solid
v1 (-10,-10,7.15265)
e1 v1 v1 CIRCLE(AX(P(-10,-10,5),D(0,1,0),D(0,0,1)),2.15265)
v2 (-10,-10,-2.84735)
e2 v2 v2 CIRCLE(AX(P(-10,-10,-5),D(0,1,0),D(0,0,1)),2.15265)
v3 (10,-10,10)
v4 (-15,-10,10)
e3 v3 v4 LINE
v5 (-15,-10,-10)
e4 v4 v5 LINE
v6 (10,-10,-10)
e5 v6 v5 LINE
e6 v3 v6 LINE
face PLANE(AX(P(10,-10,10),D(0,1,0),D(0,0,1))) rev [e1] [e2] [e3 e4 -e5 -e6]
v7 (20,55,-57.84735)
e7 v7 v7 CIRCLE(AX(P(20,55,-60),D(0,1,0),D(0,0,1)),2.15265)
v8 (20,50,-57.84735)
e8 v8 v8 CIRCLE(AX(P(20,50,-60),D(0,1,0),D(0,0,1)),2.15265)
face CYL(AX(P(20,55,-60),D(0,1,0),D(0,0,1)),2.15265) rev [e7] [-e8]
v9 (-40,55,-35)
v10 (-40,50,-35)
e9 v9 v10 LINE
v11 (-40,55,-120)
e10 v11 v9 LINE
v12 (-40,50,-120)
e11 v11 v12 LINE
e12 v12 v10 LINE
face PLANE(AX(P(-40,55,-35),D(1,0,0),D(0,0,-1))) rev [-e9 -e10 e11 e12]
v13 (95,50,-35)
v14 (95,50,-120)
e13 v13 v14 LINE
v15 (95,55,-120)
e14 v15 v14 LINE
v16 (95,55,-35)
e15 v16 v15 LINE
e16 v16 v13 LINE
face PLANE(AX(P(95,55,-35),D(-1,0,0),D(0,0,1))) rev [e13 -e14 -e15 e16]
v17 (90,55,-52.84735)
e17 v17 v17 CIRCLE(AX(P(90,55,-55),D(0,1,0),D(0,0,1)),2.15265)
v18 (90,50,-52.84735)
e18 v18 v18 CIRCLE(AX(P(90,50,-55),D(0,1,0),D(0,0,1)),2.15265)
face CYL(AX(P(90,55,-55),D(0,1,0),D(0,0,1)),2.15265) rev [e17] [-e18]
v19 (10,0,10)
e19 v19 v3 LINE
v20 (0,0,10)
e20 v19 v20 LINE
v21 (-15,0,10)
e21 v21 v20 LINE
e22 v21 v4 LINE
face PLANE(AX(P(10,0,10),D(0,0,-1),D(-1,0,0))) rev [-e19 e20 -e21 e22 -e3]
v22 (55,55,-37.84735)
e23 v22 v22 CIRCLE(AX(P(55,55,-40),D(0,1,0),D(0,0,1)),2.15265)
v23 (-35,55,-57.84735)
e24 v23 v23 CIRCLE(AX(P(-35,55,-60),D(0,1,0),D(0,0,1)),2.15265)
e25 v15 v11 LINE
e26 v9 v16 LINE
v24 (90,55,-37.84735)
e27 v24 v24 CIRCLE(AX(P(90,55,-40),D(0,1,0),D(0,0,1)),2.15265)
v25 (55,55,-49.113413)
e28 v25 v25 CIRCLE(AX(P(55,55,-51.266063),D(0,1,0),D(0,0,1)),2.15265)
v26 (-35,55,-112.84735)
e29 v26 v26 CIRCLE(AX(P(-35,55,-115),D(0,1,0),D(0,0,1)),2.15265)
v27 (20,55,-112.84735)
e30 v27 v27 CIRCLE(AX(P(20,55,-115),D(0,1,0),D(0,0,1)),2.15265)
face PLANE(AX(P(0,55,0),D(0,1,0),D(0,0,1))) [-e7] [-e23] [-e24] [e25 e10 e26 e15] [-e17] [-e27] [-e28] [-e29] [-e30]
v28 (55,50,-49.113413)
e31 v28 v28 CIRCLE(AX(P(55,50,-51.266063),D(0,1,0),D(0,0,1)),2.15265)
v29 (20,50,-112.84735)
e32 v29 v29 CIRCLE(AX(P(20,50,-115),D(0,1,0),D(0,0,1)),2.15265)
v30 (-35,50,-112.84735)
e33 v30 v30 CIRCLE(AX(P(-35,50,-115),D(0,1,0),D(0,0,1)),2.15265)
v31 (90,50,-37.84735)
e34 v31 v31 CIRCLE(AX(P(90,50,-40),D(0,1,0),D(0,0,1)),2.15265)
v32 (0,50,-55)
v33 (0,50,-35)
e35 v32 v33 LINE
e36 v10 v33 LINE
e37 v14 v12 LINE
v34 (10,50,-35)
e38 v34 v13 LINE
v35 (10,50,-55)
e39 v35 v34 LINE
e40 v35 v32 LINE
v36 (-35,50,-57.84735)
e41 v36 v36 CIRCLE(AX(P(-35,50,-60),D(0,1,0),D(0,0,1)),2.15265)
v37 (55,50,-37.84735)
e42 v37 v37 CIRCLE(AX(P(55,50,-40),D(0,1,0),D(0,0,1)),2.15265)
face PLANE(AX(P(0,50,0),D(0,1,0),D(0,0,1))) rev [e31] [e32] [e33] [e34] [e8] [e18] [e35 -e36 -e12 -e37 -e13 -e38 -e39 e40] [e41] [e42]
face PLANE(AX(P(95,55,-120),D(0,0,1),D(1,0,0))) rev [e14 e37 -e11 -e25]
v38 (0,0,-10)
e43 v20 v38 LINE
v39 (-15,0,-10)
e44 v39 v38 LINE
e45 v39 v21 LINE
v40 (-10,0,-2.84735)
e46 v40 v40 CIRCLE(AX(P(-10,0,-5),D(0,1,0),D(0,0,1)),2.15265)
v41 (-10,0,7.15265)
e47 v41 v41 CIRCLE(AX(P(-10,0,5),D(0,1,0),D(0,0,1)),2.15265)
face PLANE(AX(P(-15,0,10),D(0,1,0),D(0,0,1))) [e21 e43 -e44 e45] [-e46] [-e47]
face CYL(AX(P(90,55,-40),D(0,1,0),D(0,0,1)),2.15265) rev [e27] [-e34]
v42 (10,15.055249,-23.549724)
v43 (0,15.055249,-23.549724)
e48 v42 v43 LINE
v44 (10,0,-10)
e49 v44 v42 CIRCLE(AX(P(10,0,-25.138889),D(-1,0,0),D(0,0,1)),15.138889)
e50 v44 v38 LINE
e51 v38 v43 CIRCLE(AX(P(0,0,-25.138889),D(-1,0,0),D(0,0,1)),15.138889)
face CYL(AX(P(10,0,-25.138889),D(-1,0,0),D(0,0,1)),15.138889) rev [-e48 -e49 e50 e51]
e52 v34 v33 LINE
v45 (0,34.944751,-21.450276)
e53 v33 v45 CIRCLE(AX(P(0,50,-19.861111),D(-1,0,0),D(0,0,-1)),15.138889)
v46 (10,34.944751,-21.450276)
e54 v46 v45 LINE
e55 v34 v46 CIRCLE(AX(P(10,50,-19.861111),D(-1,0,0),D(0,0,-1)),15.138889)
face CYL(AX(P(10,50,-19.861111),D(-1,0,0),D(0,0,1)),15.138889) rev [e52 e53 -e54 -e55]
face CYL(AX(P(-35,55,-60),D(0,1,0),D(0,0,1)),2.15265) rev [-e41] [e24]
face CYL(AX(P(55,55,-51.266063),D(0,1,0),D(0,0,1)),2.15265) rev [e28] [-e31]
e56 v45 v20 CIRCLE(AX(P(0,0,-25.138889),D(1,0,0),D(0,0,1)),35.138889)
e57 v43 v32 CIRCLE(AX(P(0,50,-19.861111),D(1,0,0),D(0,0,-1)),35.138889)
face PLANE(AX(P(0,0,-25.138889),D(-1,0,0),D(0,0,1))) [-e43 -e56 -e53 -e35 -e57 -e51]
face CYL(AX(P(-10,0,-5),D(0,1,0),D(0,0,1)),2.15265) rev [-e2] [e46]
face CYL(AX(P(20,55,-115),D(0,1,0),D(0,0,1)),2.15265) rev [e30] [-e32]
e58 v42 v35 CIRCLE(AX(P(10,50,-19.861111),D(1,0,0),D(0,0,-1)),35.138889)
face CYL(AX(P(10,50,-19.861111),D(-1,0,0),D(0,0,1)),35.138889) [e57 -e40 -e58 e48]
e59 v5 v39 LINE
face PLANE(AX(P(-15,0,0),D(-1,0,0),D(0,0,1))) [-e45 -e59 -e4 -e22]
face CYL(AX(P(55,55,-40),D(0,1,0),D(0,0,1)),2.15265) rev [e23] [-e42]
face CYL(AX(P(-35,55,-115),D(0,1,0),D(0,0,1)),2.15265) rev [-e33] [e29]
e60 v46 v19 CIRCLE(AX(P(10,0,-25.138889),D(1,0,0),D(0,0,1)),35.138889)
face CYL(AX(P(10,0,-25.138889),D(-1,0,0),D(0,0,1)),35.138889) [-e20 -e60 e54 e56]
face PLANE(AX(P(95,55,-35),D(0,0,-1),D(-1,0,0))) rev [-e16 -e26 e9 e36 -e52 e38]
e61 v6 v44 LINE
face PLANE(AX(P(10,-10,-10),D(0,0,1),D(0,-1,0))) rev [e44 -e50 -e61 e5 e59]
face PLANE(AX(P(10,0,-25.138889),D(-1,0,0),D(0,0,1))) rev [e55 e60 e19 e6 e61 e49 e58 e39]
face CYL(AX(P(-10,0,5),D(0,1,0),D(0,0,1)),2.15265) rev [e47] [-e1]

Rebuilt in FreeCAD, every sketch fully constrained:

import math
import FreeCAD as App
import Part
import Sketcher

V = App.Vector

doc = App.newDocument("Part")
body = doc.addObject("PartDesign::Body", "Body")

# Sketch on YZ plane
sketch1 = body.newObject("Sketcher::SketchObject", "Sketch")
sketch1.AttachmentSupport = (doc.getObject("YZ_Plane"), [""])
sketch1.MapMode = "FlatFace"
sketch1.addGeometry([
    Part.LineSegment(V(0, 10, 0), V(-10, 10, 0)),  # 0
    Part.LineSegment(V(-10, 10, 0), V(-10, -10, 0)),  # 1
    Part.LineSegment(V(-10, -10, 0), V(0, -10, 0)),  # 2
    Part.ArcOfCircle(Part.Circle(V(0, -25, 0), V(0, 0, 1), 15), math.radians(6), math.radians(90)),  # 3
    Part.ArcOfCircle(Part.Circle(V(50, -20, 0), V(0, 0, 1), 35), math.radians(-174), math.radians(-90)),  # 4
    Part.LineSegment(V(50, -55, 0), V(50, -35, 0)),  # 5
    Part.ArcOfCircle(Part.Circle(V(50, -20, 0), V(0, 0, 1), 15), math.radians(-174), math.radians(-90)),  # 6
    Part.ArcOfCircle(Part.Circle(V(0, -25, 0), V(0, 0, 1), 35), math.radians(6), math.radians(90)),  # 7
], False)
sketch1.addConstraint([
    Sketcher.Constraint("Coincident", 0, 2, 1, 1),
    Sketcher.Constraint("Coincident", 1, 2, 2, 1),
    Sketcher.Constraint("Tangent", 2, 2, 3, 2),
    Sketcher.Constraint("Tangent", 3, 1, 4, 1),
    Sketcher.Constraint("Coincident", 4, 2, 5, 1),
    Sketcher.Constraint("Coincident", 5, 2, 6, 2),
    Sketcher.Constraint("Tangent", 6, 1, 7, 1),
    Sketcher.Constraint("Tangent", 7, 2, 0, 1),
    Sketcher.Constraint("Horizontal", 0),
    Sketcher.Constraint("Vertical", 1),
    Sketcher.Constraint("Horizontal", 2),
    Sketcher.Constraint("Vertical", 5),
    Sketcher.Constraint("Coincident", 6, 3, 4, 3),
    Sketcher.Constraint("Coincident", 7, 3, 3, 3),
    Sketcher.Constraint("Equal", 3, 6),
    Sketcher.Constraint("Symmetric", 2, 2, 7, 2, -1, 1),
    Sketcher.Constraint("Vertical", 6, 3, 4, 2),
    Sketcher.Constraint("DistanceX", 0, 2, 0, 1, 10.0),
    Sketcher.Constraint("DistanceY", 1, 2, 1, 1, 20.0),
    Sketcher.Constraint("DistanceX", -1, 1, 4, 3, 50.0),
    Sketcher.Constraint("DistanceY", 4, 2, -1, 1, 55.0),
])
pad1 = body.newObject("PartDesign::Pad", "Pad")
pad1.Profile = sketch1
pad1.Length = 10

# Sketch on YZ plane
sketch2 = body.newObject("Sketcher::SketchObject", "Sketch001")
sketch2.AttachmentSupport = (doc.getObject("YZ_Plane"), [""])
sketch2.MapMode = "FlatFace"
sketch2.AttachmentOffset = App.Placement(V(0, 0, 10), App.Rotation())
sketch2.addGeometry([
    Part.LineSegment(V(0, 10, 0), V(-10, 10, 0)),
    Part.LineSegment(V(-10, 10, 0), V(-10, -10, 0)),
    Part.LineSegment(V(-10, -10, 0), V(0, -10, 0)),
    Part.LineSegment(V(0, -10, 0), V(0, 10, 0)),
], False)
sketch2.addConstraint([
    Sketcher.Constraint("Coincident", 0, 2, 1, 1),
    Sketcher.Constraint("Coincident", 1, 2, 2, 1),
    Sketcher.Constraint("Coincident", 2, 2, 3, 1),
    Sketcher.Constraint("Coincident", 3, 2, 0, 1),
    Sketcher.Constraint("Horizontal", 0),
    Sketcher.Constraint("Vertical", 1),
    Sketcher.Constraint("Horizontal", 2),
    Sketcher.Constraint("Vertical", 3),
    Sketcher.Constraint("Symmetric", 2, 2, 3, 2, -1, 1),
    Sketcher.Constraint("DistanceX", 0, 2, 0, 1, 10.0),
    Sketcher.Constraint("DistanceY", 1, 2, 1, 1, 20.0),
])
pad2 = body.newObject("PartDesign::Pad", "Pad001")
pad2.Profile = sketch2
pad2.Length = 25
pad2.Reversed = True

# Sketch on XZ plane
sketch3 = body.newObject("Sketcher::SketchObject", "Sketch002")
sketch3.AttachmentSupport = (doc.getObject("XZ_Plane"), [""])
sketch3.MapMode = "FlatFace"
sketch3.addGeometry([
    Part.Circle(V(-10, -5, 0), V(0, 0, 1), 2.2),
    Part.Circle(V(-10, 5, 0), V(0, 0, 1), 2.2),
], False)
sketch3.addConstraint([
    Sketcher.Constraint("Equal", 0, 1),
    Sketcher.Constraint("Symmetric", 0, 3, 1, 3, -1),
    Sketcher.Constraint("DistanceX", 0, 3, -1, 1, 10.0),
    Sketcher.Constraint("DistanceY", 0, 3, -1, 1, 5.0),
    Sketcher.Constraint("Diameter", 0, 4.3053),
])
doc.recompute()
hole = body.newObject("PartDesign::Hole", "Hole")
hole.Profile = sketch3
hole.ThreadType = "None"
hole.Diameter = 4.3053
hole.DepthType = "ThroughAll"
hole.Reversed = True

# Sketch on XZ plane
sketch4 = body.newObject("Sketcher::SketchObject", "Sketch003")
sketch4.AttachmentSupport = (doc.getObject("XZ_Plane"), [""])
sketch4.MapMode = "FlatFace"
sketch4.AttachmentOffset = App.Placement(V(0, 0, -50), App.Rotation())
sketch4.addGeometry([
    Part.LineSegment(V(-40, -120, 0), V(-40, -35, 0)),
    Part.LineSegment(V(-40, -35, 0), V(95, -35, 0)),
    Part.LineSegment(V(95, -35, 0), V(95, -120, 0)),
    Part.LineSegment(V(95, -120, 0), V(-40, -120, 0)),
], False)
sketch4.addConstraint([
    Sketcher.Constraint("Coincident", 0, 2, 1, 1),
    Sketcher.Constraint("Coincident", 1, 2, 2, 1),
    Sketcher.Constraint("Coincident", 2, 2, 3, 1),
    Sketcher.Constraint("Coincident", 3, 2, 0, 1),
    Sketcher.Constraint("Vertical", 0),
    Sketcher.Constraint("Horizontal", 1),
    Sketcher.Constraint("Vertical", 2),
    Sketcher.Constraint("Horizontal", 3),
    Sketcher.Constraint("DistanceX", 1, 1, 1, 2, 135.0),
    Sketcher.Constraint("DistanceY", 0, 1, 0, 2, 85.0),
    Sketcher.Constraint("DistanceX", 0, 2, -1, 1, 40.0),
    Sketcher.Constraint("DistanceY", 0, 2, -1, 1, 35.0),
])
pad3 = body.newObject("PartDesign::Pad", "Pad002")
pad3.Profile = sketch4
pad3.Length = 5
pad3.Reversed = True

# Sketch on XZ plane
sketch5 = body.newObject("Sketcher::SketchObject", "Sketch004")
sketch5.AttachmentSupport = (doc.getObject("XZ_Plane"), [""])
sketch5.MapMode = "FlatFace"
sketch5.AttachmentOffset = App.Placement(V(0, 0, -55), App.Rotation())
sketch5.addGeometry([
    Part.Circle(V(20, -115, 0), V(0, 0, 1), 2.2),
    Part.Circle(V(20, -60, 0), V(0, 0, 1), 2.2),
    Part.Circle(V(-35, -60, 0), V(0, 0, 1), 2.2),
    Part.Circle(V(-35, -115, 0), V(0, 0, 1), 2.2),
], False)
sketch5.addConstraint([
    Sketcher.Constraint("Equal", 0, 1),
    Sketcher.Constraint("Equal", 1, 2),
    Sketcher.Constraint("Equal", 2, 3),
    Sketcher.Constraint("Horizontal", 1, 3, 2, 3),
    Sketcher.Constraint("Horizontal", 0, 3, 3, 3),
    Sketcher.Constraint("Vertical", 0, 3, 1, 3),
    Sketcher.Constraint("Vertical", 2, 3, 3, 3),
    Sketcher.Constraint("DistanceX", -1, 1, 0, 3, 20.0),
    Sketcher.Constraint("DistanceY", 0, 3, -1, 1, 115.0),
    Sketcher.Constraint("DistanceY", 1, 3, -1, 1, 60.0),
    Sketcher.Constraint("DistanceX", 2, 3, -1, 1, 35.0),
    Sketcher.Constraint("Diameter", 0, 4.3053),
])
doc.recompute()
hole2 = body.newObject("PartDesign::Hole", "Hole001")
hole2.Profile = sketch5
hole2.ThreadType = "None"
hole2.Diameter = 4.3053
hole2.DepthType = "ThroughAll"
hole2.Reversed = True

# Sketch on XZ plane
sketch6 = body.newObject("Sketcher::SketchObject", "Sketch005")
sketch6.AttachmentSupport = (doc.getObject("XZ_Plane"), [""])
sketch6.MapMode = "FlatFace"
sketch6.AttachmentOffset = App.Placement(V(0, 0, -55), App.Rotation())
sketch6.addGeometry([
    Part.Circle(V(90, -40, 0), V(0, 0, 1), 2.2),
    Part.Circle(V(55, -40, 0), V(0, 0, 1), 2.2),
    Part.Circle(V(55, -51.3, 0), V(0, 0, 1), 2.2),
    Part.Circle(V(90, -55, 0), V(0, 0, 1), 2.2),
], False)
sketch6.addConstraint([
    Sketcher.Constraint("Equal", 0, 1),
    Sketcher.Constraint("Equal", 1, 2),
    Sketcher.Constraint("Equal", 2, 3),
    Sketcher.Constraint("Horizontal", 0, 3, 1, 3),
    Sketcher.Constraint("Vertical", 1, 3, 2, 3),
    Sketcher.Constraint("Vertical", 0, 3, 3, 3),
    Sketcher.Constraint("DistanceX", -1, 1, 0, 3, 90.0),
    Sketcher.Constraint("DistanceY", 0, 3, -1, 1, 40.0),
    Sketcher.Constraint("DistanceX", -1, 1, 1, 3, 55.0),
    Sketcher.Constraint("DistanceY", 3, 3, -1, 1, 55.0),
    Sketcher.Constraint("Diameter", 0, 4.3053),
    Sketcher.Constraint("DistanceY", 2, 3, -1, 1, 51.266063),
])
doc.recompute()
hole3 = body.newObject("PartDesign::Hole", "Hole002")
hole3.Profile = sketch6
hole3.ThreadType = "None"
hole3.Diameter = 4.3053
hole3.DepthType = "ThroughAll"
hole3.Reversed = True

doc.recompute()
